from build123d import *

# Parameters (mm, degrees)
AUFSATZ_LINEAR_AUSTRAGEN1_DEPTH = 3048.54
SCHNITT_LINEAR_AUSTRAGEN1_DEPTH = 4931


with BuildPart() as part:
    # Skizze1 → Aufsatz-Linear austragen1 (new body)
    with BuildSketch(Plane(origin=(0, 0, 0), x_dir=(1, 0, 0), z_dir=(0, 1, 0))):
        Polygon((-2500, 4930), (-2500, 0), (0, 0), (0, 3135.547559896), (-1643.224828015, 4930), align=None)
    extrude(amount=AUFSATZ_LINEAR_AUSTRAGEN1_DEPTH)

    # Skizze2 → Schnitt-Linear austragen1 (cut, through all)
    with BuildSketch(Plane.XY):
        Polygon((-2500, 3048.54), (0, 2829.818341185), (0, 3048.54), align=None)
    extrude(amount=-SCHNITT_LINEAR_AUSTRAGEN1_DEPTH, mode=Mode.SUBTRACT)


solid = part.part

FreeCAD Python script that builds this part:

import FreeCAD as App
import Part
import Sketcher
from FreeCAD import Vector
Q = App.Units.Quantity


def add_polygon(sketch, points):
    """Adds a closed chain of lines whose ends are joined by coincident constraints."""
    first, n = sketch.GeometryCount, len(points)
    for a, b in zip(points, points[1:] + points[:1]):
        sketch.addGeometry(Part.LineSegment(App.Vector(*a, 0), App.Vector(*b, 0)), False)
    for i in range(n):
        sketch.addConstraint(Sketcher.Constraint("Coincident", first + i, 2, first + (i + 1) % n, 1))

doc = App.newDocument("Part")
body = doc.addObject("PartDesign::Body", "Body")

# Sketch on XZ plane
sketch1 = doc.addObject("Sketcher::SketchObject", "Sketch")
body.addObject(sketch1)
sketch1.AttachmentSupport = (doc.XZ_Plane, [""])
sketch1.MapMode = "FlatFace"
add_polygon(sketch1, [(-2500, -4930), (-2500, 0), (0, 0), (0, -3136), (-1643, -4930)])  # lines 0-4
sketch1.addConstraint([
    Sketcher.Constraint("Vertical", 0),
    Sketcher.Constraint("Horizontal", 1),
    Sketcher.Constraint("Vertical", 2),
    Sketcher.Constraint("Horizontal", 4),
    Sketcher.Constraint("Coincident", 1, 2, -1, 1),
    Sketcher.Constraint("DistanceX", 1, 1, 1, 2, Q("2500 mm")),
    Sketcher.Constraint("DistanceY", 0, 1, 0, 2, Q("4930 mm")),
    Sketcher.Constraint("DistanceX", 4, 2, 4, 1, Q("856.775172 mm")),
    Sketcher.Constraint("DistanceY", 2, 2, 2, 1, Q("3135.54756 mm")),
])
pad1 = doc.addObject("PartDesign::Pad", "Pad")
body.addObject(pad1)
pad1.Profile = sketch1
pad1.Length = 3048.54
pad1.Reversed = True

# Sketch on XY plane
sketch2 = doc.addObject("Sketcher::SketchObject", "Sketch001")
body.addObject(sketch2)
sketch2.AttachmentSupport = (doc.XY_Plane, [""])
sketch2.MapMode = "FlatFace"
add_polygon(sketch2, [(-2500, 3049), (0, 2830), (0, 3049)])  # lines 0-2
sketch2.addConstraint([
    Sketcher.Constraint("Vertical", 1),
    Sketcher.Constraint("Horizontal", 2),
    Sketcher.Constraint("PointOnObject", 0, 2, -2),
    Sketcher.Constraint("DistanceX", 2, 2, 2, 1, Q("2500 mm")),
    Sketcher.Constraint("Angle", 0, Q("-5 deg")),
    Sketcher.Constraint("DistanceY", -1, 1, 1, 2, Q("3048.54 mm")),
])
pocket1 = doc.addObject("PartDesign::Pocket", "Pocket")
body.addObject(pocket1)
pocket1.Profile = sketch2
pocket1.Type = "ThroughAll"

doc.recompute()
